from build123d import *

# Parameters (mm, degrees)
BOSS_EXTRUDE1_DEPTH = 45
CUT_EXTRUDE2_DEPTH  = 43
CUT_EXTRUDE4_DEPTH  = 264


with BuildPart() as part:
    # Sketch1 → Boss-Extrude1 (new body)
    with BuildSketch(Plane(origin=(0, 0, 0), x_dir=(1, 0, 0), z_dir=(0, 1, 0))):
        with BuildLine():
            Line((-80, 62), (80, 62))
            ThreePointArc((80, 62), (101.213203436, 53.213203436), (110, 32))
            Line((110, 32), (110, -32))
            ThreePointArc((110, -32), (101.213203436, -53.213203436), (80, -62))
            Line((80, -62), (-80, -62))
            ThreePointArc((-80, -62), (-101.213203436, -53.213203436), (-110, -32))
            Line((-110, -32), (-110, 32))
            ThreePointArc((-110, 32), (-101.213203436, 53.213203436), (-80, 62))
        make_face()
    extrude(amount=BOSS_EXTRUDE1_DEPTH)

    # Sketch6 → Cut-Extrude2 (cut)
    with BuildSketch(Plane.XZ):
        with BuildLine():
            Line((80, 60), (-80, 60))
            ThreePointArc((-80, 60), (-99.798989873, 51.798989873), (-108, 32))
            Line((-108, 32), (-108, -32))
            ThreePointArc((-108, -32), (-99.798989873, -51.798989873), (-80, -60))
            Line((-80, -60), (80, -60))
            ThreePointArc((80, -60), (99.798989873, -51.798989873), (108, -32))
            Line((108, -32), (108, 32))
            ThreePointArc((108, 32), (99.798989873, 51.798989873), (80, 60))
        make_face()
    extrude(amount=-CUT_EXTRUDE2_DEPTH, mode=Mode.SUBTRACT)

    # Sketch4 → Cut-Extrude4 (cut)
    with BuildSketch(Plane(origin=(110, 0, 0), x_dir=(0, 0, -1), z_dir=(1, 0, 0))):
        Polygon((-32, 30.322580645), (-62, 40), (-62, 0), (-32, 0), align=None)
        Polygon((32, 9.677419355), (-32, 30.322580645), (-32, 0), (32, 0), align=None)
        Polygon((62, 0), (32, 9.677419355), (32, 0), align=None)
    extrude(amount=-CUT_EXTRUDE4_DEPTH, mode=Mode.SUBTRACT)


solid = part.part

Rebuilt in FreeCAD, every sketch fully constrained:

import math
import FreeCAD as App
import Part
import Sketcher


def add_polygon(sketch, points):
    """Adds a closed chain of lines whose ends are joined by coincident constraints."""
    first, n = sketch.GeometryCount, len(points)
    for a, b in zip(points, points[1:] + points[:1]):
        sketch.addGeometry(Part.LineSegment(App.Vector(*a, 0), App.Vector(*b, 0)), False)
    for i in range(n):
        sketch.addConstraint(Sketcher.Constraint("Coincident", first + i, 2, first + (i + 1) % n, 1))

doc = App.newDocument("Part")
body = doc.addObject("PartDesign::Body", "Body")

# Sketch on XZ plane
sketch1 = body.newObject("Sketcher::SketchObject", "Sketch")
sketch1.AttachmentSupport = (doc.getObject("XZ_Plane"), [""])
sketch1.MapMode = "FlatFace"
sketch1.addGeometry(Part.LineSegment(App.Vector(80, -62, 0), App.Vector(-80, -62, 0)), False)
sketch1.addGeometry(Part.ArcOfCircle(Part.Circle(App.Vector(-80, -32, 0), App.Vector(0, 0, 1), 30), math.radians(180), math.radians(270)), False)
sketch1.addGeometry(Part.LineSegment(App.Vector(-110, -32, 0), App.Vector(-110, 32, 0)), False)
sketch1.addGeometry(Part.ArcOfCircle(Part.Circle(App.Vector(-80, 32, 0), App.Vector(0, 0, 1), 30), math.radians(90), math.radians(180)), False)
sketch1.addGeometry(Part.LineSegment(App.Vector(-80, 62, 0), App.Vector(80, 62, 0)), False)
sketch1.addGeometry(Part.ArcOfCircle(Part.Circle(App.Vector(80, 32, 0), App.Vector(0, 0, 1), 30), math.radians(0), math.radians(90)), False)
sketch1.addGeometry(Part.LineSegment(App.Vector(110, 32, 0), App.Vector(110, -32, 0)), False)
sketch1.addGeometry(Part.ArcOfCircle(Part.Circle(App.Vector(80, -32, 0), App.Vector(0, 0, 1), 30), math.radians(-90), math.radians(0)), False)
sketch1.addConstraint(Sketcher.Constraint("Tangent", 0, 2, 1, 2))
sketch1.addConstraint(Sketcher.Constraint("Tangent", 1, 1, 2, 1))
sketch1.addConstraint(Sketcher.Constraint("Tangent", 2, 2, 3, 2))
sketch1.addConstraint(Sketcher.Constraint("Tangent", 3, 1, 4, 1))
sketch1.addConstraint(Sketcher.Constraint("Tangent", 4, 2, 5, 2))
sketch1.addConstraint(Sketcher.Constraint("Tangent", 5, 1, 6, 1))
sketch1.addConstraint(Sketcher.Constraint("Tangent", 6, 2, 7, 2))
sketch1.addConstraint(Sketcher.Constraint("Tangent", 7, 1, 0, 1))
sketch1.addConstraint(Sketcher.Constraint("Horizontal", 0))
sketch1.addConstraint(Sketcher.Constraint("Vertical", 2))
sketch1.addConstraint(Sketcher.Constraint("Horizontal", 4))
sketch1.addConstraint(Sketcher.Constraint("Vertical", 6))
sketch1.addConstraint(Sketcher.Constraint("Equal", 1, 3))
sketch1.addConstraint(Sketcher.Constraint("Equal", 3, 5))
sketch1.addConstraint(Sketcher.Constraint("Equal", 5, 7))
sketch1.addConstraint(Sketcher.Constraint("Symmetric", 1, 3, 5, 3, -1, 1))
sketch1.addConstraint(Sketcher.Constraint("Radius", 1, 30.0))
sketch1.addConstraint(Sketcher.Constraint("DistanceX", 0, 2, 0, 1, 160.0))
sketch1.addConstraint(Sketcher.Constraint("DistanceY", 2, 1, 2, 2, 64.0))
pad1 = body.newObject("PartDesign::Pad", "Pad")
pad1.Profile = sketch1
pad1.Length = 45
pad1.Reversed = True

# Sketch on XZ plane
sketch2 = body.newObject("Sketcher::SketchObject", "Sketch001")
sketch2.AttachmentSupport = (doc.getObject("XZ_Plane"), [""])
sketch2.MapMode = "FlatFace"
sketch2.addGeometry(Part.LineSegment(App.Vector(80, 60, 0), App.Vector(-80, 60, 0)), False)
sketch2.addGeometry(Part.ArcOfCircle(Part.Circle(App.Vector(-80, 32, 0), App.Vector(0, 0, 1), 28), math.radians(90), math.radians(180)), False)
sketch2.addGeometry(Part.LineSegment(App.Vector(-108, 32, 0), App.Vector(-108, -32, 0)), False)
sketch2.addGeometry(Part.ArcOfCircle(Part.Circle(App.Vector(-80, -32, 0), App.Vector(0, 0, 1), 28), math.radians(-180), math.radians(-90)), False)
sketch2.addGeometry(Part.LineSegment(App.Vector(-80, -60, 0), App.Vector(80, -60, 0)), False)
sketch2.addGeometry(Part.ArcOfCircle(Part.Circle(App.Vector(80, -32, 0), App.Vector(0, 0, 1), 28), math.radians(-90), math.radians(0)), False)
sketch2.addGeometry(Part.LineSegment(App.Vector(108, -32, 0), App.Vector(108, 32, 0)), False)
sketch2.addGeometry(Part.ArcOfCircle(Part.Circle(App.Vector(80, 32, 0), App.Vector(0, 0, 1), 28), math.radians(0), math.radians(90)), False)
sketch2.addConstraint(Sketcher.Constraint("Tangent", 0, 2, 1, 1))
sketch2.addConstraint(Sketcher.Constraint("Tangent", 1, 2, 2, 1))
sketch2.addConstraint(Sketcher.Constraint("Tangent", 2, 2, 3, 1))
sketch2.addConstraint(Sketcher.Constraint("Tangent", 3, 2, 4, 1))
sketch2.addConstraint(Sketcher.Constraint("Tangent", 4, 2, 5, 1))
sketch2.addConstraint(Sketcher.Constraint("Tangent", 5, 2, 6, 1))
sketch2.addConstraint(Sketcher.Constraint("Tangent", 6, 2, 7, 1))
sketch2.addConstraint(Sketcher.Constraint("Tangent", 7, 2, 0, 1))
sketch2.addConstraint(Sketcher.Constraint("Horizontal", 0))
sketch2.addConstraint(Sketcher.Constraint("Vertical", 2))
sketch2.addConstraint(Sketcher.Constraint("Horizontal", 4))
sketch2.addConstraint(Sketcher.Constraint("Vertical", 6))
sketch2.addConstraint(Sketcher.Constraint("Equal", 1, 3))
sketch2.addConstraint(Sketcher.Constraint("Equal", 3, 5))
sketch2.addConstraint(Sketcher.Constraint("Equal", 5, 7))
sketch2.addConstraint(Sketcher.Constraint("Symmetric", 1, 3, 5, 3, -1, 1))
sketch2.addConstraint(Sketcher.Constraint("Radius", 1, 28.0))
sketch2.addConstraint(Sketcher.Constraint("DistanceX", 0, 2, 0, 1, 160.0))
sketch2.addConstraint(Sketcher.Constraint("DistanceY", 2, 2, 2, 1, 64.0))
pocket1 = body.newObject("PartDesign::Pocket", "Pocket")
pocket1.Profile = sketch2
pocket1.Length = 43

# Sketch on YZ plane
sketch3 = body.newObject("Sketcher::SketchObject", "Sketch002")
sketch3.AttachmentSupport = (doc.getObject("YZ_Plane"), [""])
sketch3.MapMode = "FlatFace"
sketch3.AttachmentOffset = App.Placement(App.Vector(0, 0, 110), App.Rotation())
add_polygon(sketch3, [(30, 32), (40, 62), (0, 62), (0, -62), (10, -32)])  # lines 0-4
sketch3.addConstraint(Sketcher.Constraint("Horizontal", 1))
sketch3.addConstraint(Sketcher.Constraint("Vertical", 2))
sketch3.addConstraint(Sketcher.Constraint("Symmetric", 1, 2, 2, 2, -1, 1))
sketch3.addConstraint(Sketcher.Constraint("Parallel", 0, 3))
sketch3.addConstraint(Sketcher.Constraint("Parallel", 3, 4))
sketch3.addConstraint(Sketcher.Constraint("Equal", 0, 3))
sketch3.addConstraint(Sketcher.Constraint("DistanceX", 1, 2, 1, 1, 40.0))
sketch3.addConstraint(Sketcher.Constraint("DistanceY", 2, 2, 2, 1, 124.0))
sketch3.addConstraint(Sketcher.Constraint("DistanceY", 3, 2, -1, 1, 32.0))
pocket2 = body.newObject("PartDesign::Pocket", "Pocket001")
pocket2.Profile = sketch3
pocket2.Length = 264

doc.recompute()
